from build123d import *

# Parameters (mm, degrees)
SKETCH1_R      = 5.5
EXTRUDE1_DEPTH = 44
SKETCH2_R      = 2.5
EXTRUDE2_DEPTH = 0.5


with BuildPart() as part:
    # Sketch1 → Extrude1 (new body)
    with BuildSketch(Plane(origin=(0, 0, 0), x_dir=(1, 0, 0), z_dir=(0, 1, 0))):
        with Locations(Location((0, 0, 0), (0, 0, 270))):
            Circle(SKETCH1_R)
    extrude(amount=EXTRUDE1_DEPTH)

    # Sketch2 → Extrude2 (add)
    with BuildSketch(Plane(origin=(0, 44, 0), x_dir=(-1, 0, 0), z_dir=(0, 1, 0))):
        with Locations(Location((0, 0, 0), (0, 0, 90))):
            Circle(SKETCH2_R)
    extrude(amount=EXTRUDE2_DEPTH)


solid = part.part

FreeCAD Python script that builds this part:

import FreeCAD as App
import Part
import Sketcher
from FreeCAD import Vector

doc = App.newDocument("Part")
body = doc.addObject("PartDesign::Body", "Body")

# Sketch on XZ plane
sketch1 = doc.addObject("Sketcher::SketchObject", "Sketch")
body.addObject(sketch1)
sketch1.AttachmentSupport = (doc.XZ_Plane, [""])
sketch1.MapMode = "FlatFace"
sketch1.addGeometry(Part.Circle(Vector(0, 0, 0), Vector(0, 0, 1), 6), False)
sketch1.addConstraint(Sketcher.Constraint("Coincident", 0, 3, -1, 1))
sketch1.addConstraint(Sketcher.Constraint("Diameter", 0, 11.0))
pad1 = doc.addObject("PartDesign::Pad", "Pad")
body.addObject(pad1)
pad1.Profile = sketch1
pad1.Length = 44
pad1.Reversed = True

# Sketch on XZ plane
sketch2 = doc.addObject("Sketcher::SketchObject", "Sketch001")
body.addObject(sketch2)
sketch2.AttachmentSupport = (doc.XZ_Plane, [""])
sketch2.MapMode = "FlatFace"
sketch2.AttachmentOffset = App.Placement(Vector(0, 0, -44), App.Rotation())
sketch2.addGeometry(Part.Circle(Vector(0, 0, 0), Vector(0, 0, 1), 2.5), False)
sketch2.addConstraint(Sketcher.Constraint("Coincident", 0, 3, -1, 1))
sketch2.addConstraint(Sketcher.Constraint("Diameter", 0, 5.0))
pad2 = doc.addObject("PartDesign::Pad", "Pad001")
body.addObject(pad2)
pad2.Profile = sketch2
pad2.Length = 0.5
pad2.Reversed = True

doc.recompute()
